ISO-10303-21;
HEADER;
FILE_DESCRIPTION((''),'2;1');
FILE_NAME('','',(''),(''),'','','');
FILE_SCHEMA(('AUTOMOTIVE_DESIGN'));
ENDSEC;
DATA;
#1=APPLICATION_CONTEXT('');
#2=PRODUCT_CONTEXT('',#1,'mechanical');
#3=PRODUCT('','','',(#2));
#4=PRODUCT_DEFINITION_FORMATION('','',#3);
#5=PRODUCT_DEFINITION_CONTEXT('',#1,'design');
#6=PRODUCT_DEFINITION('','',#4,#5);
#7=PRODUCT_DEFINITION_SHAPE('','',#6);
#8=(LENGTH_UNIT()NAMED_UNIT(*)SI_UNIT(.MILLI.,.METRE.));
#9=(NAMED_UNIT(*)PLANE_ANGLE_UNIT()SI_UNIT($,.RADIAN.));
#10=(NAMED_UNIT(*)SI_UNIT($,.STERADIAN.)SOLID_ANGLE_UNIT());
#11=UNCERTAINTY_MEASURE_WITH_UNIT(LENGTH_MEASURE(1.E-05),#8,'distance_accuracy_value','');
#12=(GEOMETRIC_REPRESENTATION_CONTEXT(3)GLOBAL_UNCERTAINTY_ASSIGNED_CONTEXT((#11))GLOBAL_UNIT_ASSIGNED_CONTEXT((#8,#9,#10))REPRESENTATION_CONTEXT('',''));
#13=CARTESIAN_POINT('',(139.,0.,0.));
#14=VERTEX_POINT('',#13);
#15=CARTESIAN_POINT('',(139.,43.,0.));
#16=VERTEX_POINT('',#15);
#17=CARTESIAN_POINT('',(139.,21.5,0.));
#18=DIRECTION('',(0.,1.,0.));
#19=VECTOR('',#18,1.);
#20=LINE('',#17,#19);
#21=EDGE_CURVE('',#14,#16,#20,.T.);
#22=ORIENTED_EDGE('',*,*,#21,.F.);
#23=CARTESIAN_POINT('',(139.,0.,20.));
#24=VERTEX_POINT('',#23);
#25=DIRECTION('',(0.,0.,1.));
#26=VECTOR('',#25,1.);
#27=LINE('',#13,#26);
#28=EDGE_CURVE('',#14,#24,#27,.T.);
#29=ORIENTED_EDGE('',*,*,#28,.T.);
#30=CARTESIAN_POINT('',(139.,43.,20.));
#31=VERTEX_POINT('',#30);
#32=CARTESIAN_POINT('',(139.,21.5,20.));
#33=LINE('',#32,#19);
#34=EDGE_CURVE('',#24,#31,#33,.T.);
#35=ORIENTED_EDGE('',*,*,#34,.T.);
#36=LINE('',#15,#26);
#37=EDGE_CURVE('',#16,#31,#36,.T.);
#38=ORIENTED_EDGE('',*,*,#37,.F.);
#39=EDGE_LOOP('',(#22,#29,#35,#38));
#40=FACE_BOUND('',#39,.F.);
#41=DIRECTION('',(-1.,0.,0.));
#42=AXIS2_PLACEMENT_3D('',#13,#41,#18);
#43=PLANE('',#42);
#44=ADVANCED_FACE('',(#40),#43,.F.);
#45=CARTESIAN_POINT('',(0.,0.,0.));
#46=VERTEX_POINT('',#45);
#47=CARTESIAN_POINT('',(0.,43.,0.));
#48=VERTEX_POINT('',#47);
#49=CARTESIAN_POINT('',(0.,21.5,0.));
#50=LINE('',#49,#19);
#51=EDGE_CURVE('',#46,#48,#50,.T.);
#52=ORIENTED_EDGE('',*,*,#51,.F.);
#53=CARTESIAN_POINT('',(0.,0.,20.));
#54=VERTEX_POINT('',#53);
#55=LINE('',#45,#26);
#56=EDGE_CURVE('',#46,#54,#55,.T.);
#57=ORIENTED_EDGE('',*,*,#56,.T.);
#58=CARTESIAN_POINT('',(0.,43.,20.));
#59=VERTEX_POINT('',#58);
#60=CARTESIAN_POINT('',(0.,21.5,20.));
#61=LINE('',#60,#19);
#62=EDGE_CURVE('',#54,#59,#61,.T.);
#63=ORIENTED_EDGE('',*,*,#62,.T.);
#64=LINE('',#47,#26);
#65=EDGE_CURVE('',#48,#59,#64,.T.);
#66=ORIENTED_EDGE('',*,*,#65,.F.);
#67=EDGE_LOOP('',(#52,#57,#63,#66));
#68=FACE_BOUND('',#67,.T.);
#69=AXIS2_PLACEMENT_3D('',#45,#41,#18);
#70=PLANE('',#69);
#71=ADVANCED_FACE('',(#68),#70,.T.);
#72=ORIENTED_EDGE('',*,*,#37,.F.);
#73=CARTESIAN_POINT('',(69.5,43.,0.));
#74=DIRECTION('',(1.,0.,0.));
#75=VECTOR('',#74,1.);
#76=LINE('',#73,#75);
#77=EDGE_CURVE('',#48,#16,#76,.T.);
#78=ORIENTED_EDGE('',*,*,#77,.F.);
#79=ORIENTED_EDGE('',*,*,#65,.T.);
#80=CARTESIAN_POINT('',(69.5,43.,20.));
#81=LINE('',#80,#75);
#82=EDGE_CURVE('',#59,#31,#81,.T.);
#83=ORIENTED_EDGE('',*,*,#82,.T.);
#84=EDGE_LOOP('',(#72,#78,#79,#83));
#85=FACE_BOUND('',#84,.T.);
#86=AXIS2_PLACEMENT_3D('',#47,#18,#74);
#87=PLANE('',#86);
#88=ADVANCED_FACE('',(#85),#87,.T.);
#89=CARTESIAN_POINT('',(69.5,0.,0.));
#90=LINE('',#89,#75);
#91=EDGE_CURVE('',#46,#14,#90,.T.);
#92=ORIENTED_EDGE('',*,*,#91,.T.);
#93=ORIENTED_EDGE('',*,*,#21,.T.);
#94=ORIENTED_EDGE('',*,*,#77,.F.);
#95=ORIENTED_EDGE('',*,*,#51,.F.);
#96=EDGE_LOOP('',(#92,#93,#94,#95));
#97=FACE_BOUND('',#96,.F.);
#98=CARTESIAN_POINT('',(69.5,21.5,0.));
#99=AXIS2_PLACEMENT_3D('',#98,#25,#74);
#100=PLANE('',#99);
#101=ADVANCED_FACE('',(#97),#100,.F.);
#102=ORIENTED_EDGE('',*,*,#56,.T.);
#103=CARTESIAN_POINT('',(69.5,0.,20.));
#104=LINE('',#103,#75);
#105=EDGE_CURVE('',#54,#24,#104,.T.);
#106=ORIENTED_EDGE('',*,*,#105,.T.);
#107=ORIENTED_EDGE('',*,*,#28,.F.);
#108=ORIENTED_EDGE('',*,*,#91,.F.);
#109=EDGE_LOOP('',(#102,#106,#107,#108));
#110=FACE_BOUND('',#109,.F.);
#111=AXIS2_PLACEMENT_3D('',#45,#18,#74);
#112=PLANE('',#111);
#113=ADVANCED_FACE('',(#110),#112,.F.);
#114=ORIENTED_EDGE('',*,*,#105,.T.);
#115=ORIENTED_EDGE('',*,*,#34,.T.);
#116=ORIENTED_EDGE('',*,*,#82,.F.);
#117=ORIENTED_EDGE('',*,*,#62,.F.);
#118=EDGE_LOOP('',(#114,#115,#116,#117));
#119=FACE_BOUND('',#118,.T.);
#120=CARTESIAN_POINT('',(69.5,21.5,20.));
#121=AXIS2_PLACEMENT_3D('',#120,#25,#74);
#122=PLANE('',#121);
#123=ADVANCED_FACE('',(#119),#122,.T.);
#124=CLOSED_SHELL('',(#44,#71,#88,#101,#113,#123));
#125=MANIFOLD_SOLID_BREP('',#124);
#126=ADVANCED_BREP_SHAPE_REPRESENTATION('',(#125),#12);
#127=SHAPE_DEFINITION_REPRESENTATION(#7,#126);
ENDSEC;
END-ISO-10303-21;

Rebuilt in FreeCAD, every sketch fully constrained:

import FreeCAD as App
import Part
import Sketcher
from FreeCAD import Vector

doc = App.newDocument("Part")
params = doc.addObject("Spreadsheet::Sheet", "Params")
for row, (alias, value) in enumerate([
    ("sketch1_width", "139 mm"),
    ("sketch1_height", "43 mm"),
    ("pad1_length", "20 mm"),
], start=1):
    params.set(f"A{row}", alias)
    params.set(f"B{row}", "=" + value)
    params.setAlias(f"B{row}", alias)

body = doc.addObject("PartDesign::Body", "Body")

sketch1 = body.newObject("Sketcher::SketchObject", "Sketch")
sketch1.AttachmentSupport = (doc.getObject("XY_Plane"), [""])
sketch1.MapMode = "FlatFace"
sketch1.addGeometry([
    Part.LineSegment(Vector(0, 43, 0), Vector(0, 0, 0)),
    Part.LineSegment(Vector(0, 0, 0), Vector(139, 0, 0)),
    Part.LineSegment(Vector(139, 0, 0), Vector(139, 43, 0)),
    Part.LineSegment(Vector(139, 43, 0), Vector(0, 43, 0)),
], False)
sketch1.addConstraint([
    Sketcher.Constraint("Coincident", 0, 2, 1, 1),
    Sketcher.Constraint("Coincident", 1, 2, 2, 1),
    Sketcher.Constraint("Coincident", 2, 2, 3, 1),
    Sketcher.Constraint("Coincident", 3, 2, 0, 1),
    Sketcher.Constraint("Vertical", 0),
    Sketcher.Constraint("Horizontal", 1),
    Sketcher.Constraint("Vertical", 2),
    Sketcher.Constraint("Horizontal", 3),
    Sketcher.Constraint("Coincident", 0, 2, -1, 1),
    Sketcher.Constraint("DistanceX", 1, 1, 1, 2, 139.0),
    Sketcher.Constraint("DistanceY", 0, 2, 0, 1, 43.0),
])
sketch1.setExpression("Constraints[9]", "Params.sketch1_width")
sketch1.setExpression("Constraints[10]", "Params.sketch1_height")
pad1 = body.newObject("PartDesign::Pad", "Pad")
pad1.Profile = sketch1
pad1.setExpression("Length", "Params.pad1_length")

doc.recompute()
